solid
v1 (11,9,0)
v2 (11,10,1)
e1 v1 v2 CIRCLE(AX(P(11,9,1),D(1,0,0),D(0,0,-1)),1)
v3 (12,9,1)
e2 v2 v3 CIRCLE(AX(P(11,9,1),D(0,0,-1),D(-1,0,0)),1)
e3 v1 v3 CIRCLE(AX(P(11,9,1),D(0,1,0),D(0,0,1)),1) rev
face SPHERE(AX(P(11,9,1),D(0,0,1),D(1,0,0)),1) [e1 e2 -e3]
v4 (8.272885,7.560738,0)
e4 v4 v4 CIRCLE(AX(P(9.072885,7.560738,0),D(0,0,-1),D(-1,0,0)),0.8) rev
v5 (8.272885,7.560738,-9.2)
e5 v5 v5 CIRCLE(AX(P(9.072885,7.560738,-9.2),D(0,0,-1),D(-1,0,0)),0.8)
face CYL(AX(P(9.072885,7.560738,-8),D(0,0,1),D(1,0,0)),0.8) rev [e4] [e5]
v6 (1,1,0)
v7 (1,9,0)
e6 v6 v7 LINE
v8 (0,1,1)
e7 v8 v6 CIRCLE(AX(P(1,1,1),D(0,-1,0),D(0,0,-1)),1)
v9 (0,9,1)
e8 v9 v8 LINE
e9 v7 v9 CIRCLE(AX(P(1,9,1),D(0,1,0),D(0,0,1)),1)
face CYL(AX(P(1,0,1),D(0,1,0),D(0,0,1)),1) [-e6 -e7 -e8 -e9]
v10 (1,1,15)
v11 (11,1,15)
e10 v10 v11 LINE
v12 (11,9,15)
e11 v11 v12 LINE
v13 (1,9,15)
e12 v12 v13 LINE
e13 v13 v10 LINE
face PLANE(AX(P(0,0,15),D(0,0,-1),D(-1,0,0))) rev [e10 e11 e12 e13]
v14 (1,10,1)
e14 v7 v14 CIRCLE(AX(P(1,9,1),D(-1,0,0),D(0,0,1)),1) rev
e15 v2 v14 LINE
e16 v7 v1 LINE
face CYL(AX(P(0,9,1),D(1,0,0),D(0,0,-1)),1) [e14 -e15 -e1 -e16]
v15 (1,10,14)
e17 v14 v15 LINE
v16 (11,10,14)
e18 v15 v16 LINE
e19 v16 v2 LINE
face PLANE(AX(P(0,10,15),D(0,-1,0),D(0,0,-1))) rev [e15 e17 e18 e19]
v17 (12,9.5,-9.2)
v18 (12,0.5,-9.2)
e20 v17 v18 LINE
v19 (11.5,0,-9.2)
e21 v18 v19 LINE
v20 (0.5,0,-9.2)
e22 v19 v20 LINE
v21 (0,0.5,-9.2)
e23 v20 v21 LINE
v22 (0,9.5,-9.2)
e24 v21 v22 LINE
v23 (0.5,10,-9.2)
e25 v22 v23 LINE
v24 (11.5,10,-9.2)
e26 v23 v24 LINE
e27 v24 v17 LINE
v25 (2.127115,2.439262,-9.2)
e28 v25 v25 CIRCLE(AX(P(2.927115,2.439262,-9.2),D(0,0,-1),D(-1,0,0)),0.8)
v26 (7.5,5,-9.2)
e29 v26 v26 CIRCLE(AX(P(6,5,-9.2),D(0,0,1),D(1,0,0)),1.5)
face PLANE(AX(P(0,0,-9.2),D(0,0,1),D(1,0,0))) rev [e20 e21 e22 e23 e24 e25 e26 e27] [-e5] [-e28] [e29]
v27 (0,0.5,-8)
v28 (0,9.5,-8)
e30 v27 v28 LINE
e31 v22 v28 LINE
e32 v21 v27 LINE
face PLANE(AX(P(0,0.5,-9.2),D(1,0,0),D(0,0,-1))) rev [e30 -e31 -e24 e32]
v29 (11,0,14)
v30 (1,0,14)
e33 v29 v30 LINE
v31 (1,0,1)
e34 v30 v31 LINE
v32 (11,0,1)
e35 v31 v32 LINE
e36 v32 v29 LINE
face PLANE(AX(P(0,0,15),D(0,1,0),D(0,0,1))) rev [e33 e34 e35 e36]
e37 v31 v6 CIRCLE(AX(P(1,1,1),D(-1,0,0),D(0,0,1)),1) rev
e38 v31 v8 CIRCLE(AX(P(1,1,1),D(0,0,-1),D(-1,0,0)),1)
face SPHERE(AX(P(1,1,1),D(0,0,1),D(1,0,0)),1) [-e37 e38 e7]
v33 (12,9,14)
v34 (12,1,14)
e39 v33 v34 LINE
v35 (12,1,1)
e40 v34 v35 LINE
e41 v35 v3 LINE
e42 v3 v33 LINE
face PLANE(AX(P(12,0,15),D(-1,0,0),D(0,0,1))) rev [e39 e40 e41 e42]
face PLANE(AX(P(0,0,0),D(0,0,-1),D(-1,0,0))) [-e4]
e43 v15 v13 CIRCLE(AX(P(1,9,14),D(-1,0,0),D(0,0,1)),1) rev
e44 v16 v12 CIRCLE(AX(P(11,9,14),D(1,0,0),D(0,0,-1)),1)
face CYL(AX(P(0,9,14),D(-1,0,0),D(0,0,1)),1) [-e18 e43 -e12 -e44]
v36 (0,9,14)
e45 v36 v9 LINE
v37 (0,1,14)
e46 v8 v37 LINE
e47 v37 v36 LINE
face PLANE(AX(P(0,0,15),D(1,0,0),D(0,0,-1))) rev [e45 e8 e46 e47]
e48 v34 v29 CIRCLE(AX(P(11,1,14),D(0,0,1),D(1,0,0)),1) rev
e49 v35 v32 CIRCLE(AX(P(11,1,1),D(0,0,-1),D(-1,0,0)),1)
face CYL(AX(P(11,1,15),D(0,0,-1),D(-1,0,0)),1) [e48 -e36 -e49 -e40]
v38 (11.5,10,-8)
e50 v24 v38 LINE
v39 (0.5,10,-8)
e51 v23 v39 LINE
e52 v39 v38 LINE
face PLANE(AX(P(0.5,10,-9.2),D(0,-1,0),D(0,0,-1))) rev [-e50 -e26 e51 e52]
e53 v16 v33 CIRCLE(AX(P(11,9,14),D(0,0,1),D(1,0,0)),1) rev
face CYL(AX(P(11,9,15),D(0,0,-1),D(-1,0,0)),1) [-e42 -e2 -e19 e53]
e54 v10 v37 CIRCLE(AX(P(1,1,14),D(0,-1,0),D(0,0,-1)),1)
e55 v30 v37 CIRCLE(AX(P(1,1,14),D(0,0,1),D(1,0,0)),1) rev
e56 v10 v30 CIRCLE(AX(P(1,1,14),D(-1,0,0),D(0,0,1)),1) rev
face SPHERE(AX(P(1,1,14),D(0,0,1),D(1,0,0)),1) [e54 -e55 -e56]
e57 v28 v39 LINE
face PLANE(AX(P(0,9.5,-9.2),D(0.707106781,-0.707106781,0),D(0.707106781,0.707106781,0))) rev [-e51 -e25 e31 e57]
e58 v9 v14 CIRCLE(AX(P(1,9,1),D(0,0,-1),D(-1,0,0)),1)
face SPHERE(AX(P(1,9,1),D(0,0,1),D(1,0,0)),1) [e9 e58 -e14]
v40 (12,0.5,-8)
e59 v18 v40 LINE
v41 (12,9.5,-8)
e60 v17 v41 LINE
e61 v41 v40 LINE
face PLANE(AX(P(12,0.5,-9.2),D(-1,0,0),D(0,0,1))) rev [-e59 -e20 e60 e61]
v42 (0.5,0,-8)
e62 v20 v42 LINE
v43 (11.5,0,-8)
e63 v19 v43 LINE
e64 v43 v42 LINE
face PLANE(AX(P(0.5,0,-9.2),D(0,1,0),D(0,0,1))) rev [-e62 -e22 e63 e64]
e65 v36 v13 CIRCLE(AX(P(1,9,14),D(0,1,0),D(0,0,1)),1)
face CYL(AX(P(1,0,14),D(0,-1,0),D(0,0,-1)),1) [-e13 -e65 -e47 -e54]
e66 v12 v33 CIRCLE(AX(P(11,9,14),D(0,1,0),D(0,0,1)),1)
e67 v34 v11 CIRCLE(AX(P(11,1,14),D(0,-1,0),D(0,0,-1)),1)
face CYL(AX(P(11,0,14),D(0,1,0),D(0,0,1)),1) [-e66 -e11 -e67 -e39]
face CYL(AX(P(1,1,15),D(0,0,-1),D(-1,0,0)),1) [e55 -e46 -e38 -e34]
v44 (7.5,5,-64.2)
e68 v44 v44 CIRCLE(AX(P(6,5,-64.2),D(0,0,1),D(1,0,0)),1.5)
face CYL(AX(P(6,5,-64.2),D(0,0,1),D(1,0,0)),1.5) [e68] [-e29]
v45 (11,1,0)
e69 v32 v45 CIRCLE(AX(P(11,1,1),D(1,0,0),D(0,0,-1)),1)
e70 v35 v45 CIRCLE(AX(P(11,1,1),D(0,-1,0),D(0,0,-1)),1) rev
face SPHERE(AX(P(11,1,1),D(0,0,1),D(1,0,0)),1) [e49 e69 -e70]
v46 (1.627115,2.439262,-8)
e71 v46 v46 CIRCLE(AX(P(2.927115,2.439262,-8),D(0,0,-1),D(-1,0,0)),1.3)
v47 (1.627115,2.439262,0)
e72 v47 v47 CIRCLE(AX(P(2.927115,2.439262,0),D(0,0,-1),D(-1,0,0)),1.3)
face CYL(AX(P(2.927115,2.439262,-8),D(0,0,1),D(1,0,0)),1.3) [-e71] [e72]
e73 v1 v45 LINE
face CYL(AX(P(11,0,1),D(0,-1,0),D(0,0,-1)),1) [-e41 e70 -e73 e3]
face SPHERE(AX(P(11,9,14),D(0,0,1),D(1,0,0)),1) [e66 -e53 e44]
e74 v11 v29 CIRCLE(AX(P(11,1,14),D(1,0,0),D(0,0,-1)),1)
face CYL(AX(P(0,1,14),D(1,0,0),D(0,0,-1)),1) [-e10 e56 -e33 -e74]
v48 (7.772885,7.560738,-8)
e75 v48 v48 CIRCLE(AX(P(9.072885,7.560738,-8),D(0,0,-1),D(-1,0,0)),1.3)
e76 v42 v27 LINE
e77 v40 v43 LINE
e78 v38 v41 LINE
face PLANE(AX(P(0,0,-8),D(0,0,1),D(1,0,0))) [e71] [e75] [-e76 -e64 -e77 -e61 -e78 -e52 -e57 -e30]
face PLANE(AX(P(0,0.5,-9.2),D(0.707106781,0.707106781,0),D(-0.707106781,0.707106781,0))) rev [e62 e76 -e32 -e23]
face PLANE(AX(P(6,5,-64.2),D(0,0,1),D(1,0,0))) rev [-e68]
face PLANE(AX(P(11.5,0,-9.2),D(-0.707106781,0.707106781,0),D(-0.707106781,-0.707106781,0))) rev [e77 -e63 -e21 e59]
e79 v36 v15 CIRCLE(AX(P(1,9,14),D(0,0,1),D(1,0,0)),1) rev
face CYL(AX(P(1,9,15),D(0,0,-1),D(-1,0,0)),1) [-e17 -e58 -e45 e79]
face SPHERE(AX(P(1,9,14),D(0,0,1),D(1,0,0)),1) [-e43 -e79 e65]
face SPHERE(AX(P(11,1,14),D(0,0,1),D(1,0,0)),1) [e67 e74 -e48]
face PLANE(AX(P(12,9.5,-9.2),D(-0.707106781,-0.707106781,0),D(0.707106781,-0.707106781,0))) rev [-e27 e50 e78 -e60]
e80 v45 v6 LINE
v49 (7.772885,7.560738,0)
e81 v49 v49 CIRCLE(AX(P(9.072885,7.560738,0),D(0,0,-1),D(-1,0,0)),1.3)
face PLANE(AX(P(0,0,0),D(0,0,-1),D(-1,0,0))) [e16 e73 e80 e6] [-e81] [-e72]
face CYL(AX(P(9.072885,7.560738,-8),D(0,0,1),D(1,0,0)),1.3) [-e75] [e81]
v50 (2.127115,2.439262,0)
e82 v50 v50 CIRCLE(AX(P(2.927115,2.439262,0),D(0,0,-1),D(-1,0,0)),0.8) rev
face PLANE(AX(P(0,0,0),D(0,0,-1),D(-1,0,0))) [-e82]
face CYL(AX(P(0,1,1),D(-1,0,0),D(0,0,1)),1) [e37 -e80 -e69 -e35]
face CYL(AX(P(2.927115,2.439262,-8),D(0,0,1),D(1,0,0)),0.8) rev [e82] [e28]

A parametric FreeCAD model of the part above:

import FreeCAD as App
import Part
import Sketcher
from FreeCAD import Vector
Q = App.Units.Quantity

doc = App.newDocument("Part")
body = doc.addObject("PartDesign::Body", "Body")

sketch1 = body.newObject("Sketcher::SketchObject", "Sketch")
sketch1.AttachmentSupport = (doc.getObject("XY_Plane"), [""])
sketch1.MapMode = "FlatFace"
sketch1.addGeometry([
    Part.LineSegment(Vector(0, 10, 0), Vector(0, 0, 0)),
    Part.LineSegment(Vector(0, 0, 0), Vector(12, 0, 0)),
    Part.LineSegment(Vector(12, 0, 0), Vector(12, 10, 0)),
    Part.LineSegment(Vector(12, 10, 0), Vector(0, 10, 0)),
], False)
sketch1.addConstraint([
    Sketcher.Constraint("Coincident", 0, 2, 1, 1),
    Sketcher.Constraint("Coincident", 1, 2, 2, 1),
    Sketcher.Constraint("Coincident", 2, 2, 3, 1),
    Sketcher.Constraint("Coincident", 3, 2, 0, 1),
    Sketcher.Constraint("Vertical", 0),
    Sketcher.Constraint("Horizontal", 1),
    Sketcher.Constraint("Vertical", 2),
    Sketcher.Constraint("Horizontal", 3),
    Sketcher.Constraint("Coincident", 0, 2, -1, 1),
    Sketcher.Constraint("DistanceX", 1, 1, 1, 2, Q("12 mm")),
    Sketcher.Constraint("DistanceY", 0, 2, 0, 1, Q("10 mm")),
])
pad1 = body.newObject("PartDesign::Pad", "Pad")
pad1.Profile = sketch1
pad1.Length = 15
doc.recompute()

fillet = body.newObject("PartDesign::Fillet", "Fillet")
fillet.Base = (pad1, ["Edge1"])
fillet.UseAllEdges = True
fillet.Radius = 1

sketch2 = body.newObject("Sketcher::SketchObject", "Sketch001")
sketch2.AttachmentSupport = (doc.getObject("XY_Plane"), [""])
sketch2.MapMode = "FlatFace"
sketch2.addGeometry([
    Part.Circle(Vector(2.927115, 2.439262, 0), Vector(0, 0, 1), 1.3),
    Part.Circle(Vector(2.927115, 2.439262, 0), Vector(0, 0, 1), 0.8),
    Part.Circle(Vector(9.072885, 7.560738, 0), Vector(0, 0, 1), 1.3),
    Part.Circle(Vector(9.072885, 7.560738, 0), Vector(0, 0, 1), 0.8),
], False)
sketch2.addConstraint([
    Sketcher.Constraint("Coincident", 1, 3, 0, 3),
    Sketcher.Constraint("Coincident", 3, 3, 2, 3),
    Sketcher.Constraint("Equal", 0, 2),
    Sketcher.Constraint("Equal", 1, 3),
    Sketcher.Constraint("Diameter", 0, Q("2.6 mm")),
    Sketcher.Constraint("Diameter", 1, Q("1.6 mm")),
    Sketcher.Constraint("DistanceX", 0, 3, 2, 3, Q("6.14577 mm")),
    Sketcher.Constraint("DistanceX", -1, 1, 0, 3, Q("2.927115 mm")),
    Sketcher.Constraint("DistanceY", -1, 1, 0, 3, Q("2.439262 mm")),
    Sketcher.Constraint("DistanceY", -1, 1, 2, 3, Q("7.560738 mm")),
])
pad2 = body.newObject("PartDesign::Pad", "Pad001")
pad2.Profile = sketch2
pad2.Length = 8
pad2.Reversed = True

sketch3 = body.newObject("Sketcher::SketchObject", "Sketch002")
sketch3.AttachmentSupport = (doc.getObject("XY_Plane"), [""])
sketch3.MapMode = "FlatFace"
sketch3.AttachmentOffset = App.Placement(Vector(0, 0, -8), App.Rotation())
sketch3.addGeometry([
    Part.LineSegment(Vector(0.5, 0, 0), Vector(0, 0.5, 0)),
    Part.LineSegment(Vector(0, 0.5, 0), Vector(0, 9.5, 0)),
    Part.LineSegment(Vector(0, 9.5, 0), Vector(0.5, 10, 0)),
    Part.LineSegment(Vector(0.5, 10, 0), Vector(11.5, 10, 0)),
    Part.LineSegment(Vector(11.5, 10, 0), Vector(12, 9.5, 0)),
    Part.LineSegment(Vector(12, 9.5, 0), Vector(12, 0.5, 0)),
    Part.LineSegment(Vector(12, 0.5, 0), Vector(11.5, 0, 0)),
    Part.LineSegment(Vector(11.5, 0, 0), Vector(0.5, 0, 0)),
], False)
sketch3.addConstraint([
    Sketcher.Constraint("Coincident", 0, 2, 1, 1),
    Sketcher.Constraint("Coincident", 1, 2, 2, 1),
    Sketcher.Constraint("Coincident", 2, 2, 3, 1),
    Sketcher.Constraint("Coincident", 3, 2, 4, 1),
    Sketcher.Constraint("Coincident", 4, 2, 5, 1),
    Sketcher.Constraint("Coincident", 5, 2, 6, 1),
    Sketcher.Constraint("Coincident", 6, 2, 7, 1),
    Sketcher.Constraint("Coincident", 7, 2, 0, 1),
    Sketcher.Constraint("Vertical", 1),
    Sketcher.Constraint("Horizontal", 3),
    Sketcher.Constraint("Vertical", 5),
    Sketcher.Constraint("Horizontal", 7),
    Sketcher.Constraint("PointOnObject", 0, 2, -2),
    Sketcher.Constraint("PointOnObject", 6, 2, -1),
    Sketcher.Constraint("Perpendicular", 0, 2),
    Sketcher.Constraint("Perpendicular", 2, 4),
    Sketcher.Constraint("Perpendicular", 4, 6),
    Sketcher.Constraint("Horizontal", 1, 2, 4, 2),
    Sketcher.Constraint("Horizontal", 0, 2, 5, 2),
    Sketcher.Constraint("Vertical", 3, 2, 6, 2),
    Sketcher.Constraint("Vertical", 2, 2, 7, 2),
    Sketcher.Constraint("DistanceX", 3, 1, 3, 2, Q("11 mm")),
    Sketcher.Constraint("DistanceY", 1, 1, 1, 2, Q("9 mm")),
    Sketcher.Constraint("DistanceY", -1, 1, 2, 2, Q("10 mm")),
])
pad3 = body.newObject("PartDesign::Pad", "Pad002")
pad3.Profile = sketch3
pad3.Length = 1.2
pad3.Reversed = True

sketch4 = body.newObject("Sketcher::SketchObject", "Sketch003")
sketch4.AttachmentSupport = (doc.getObject("XY_Plane"), [""])
sketch4.MapMode = "FlatFace"
sketch4.AttachmentOffset = App.Placement(Vector(0, 0, -9.2), App.Rotation())
sketch4.addGeometry([
    Part.Circle(Vector(2.927115, 2.439262, 0), Vector(0, 0, 1), 0.8),
    Part.Circle(Vector(9.072885, 7.560738, 0), Vector(0, 0, 1), 0.8),
], False)
sketch4.addConstraint([
    Sketcher.Constraint("Equal", 0, 1),
    Sketcher.Constraint("Diameter", 0, Q("1.6 mm")),
    Sketcher.Constraint("DistanceX", 0, 3, 1, 3, Q("6.14577 mm")),
    Sketcher.Constraint("DistanceX", -1, 1, 0, 3, Q("2.927115 mm")),
    Sketcher.Constraint("DistanceY", -1, 1, 0, 3, Q("2.439262 mm")),
    Sketcher.Constraint("DistanceY", -1, 1, 1, 3, Q("7.560738 mm")),
])
pocket1 = body.newObject("PartDesign::Pocket", "Pocket")
pocket1.Profile = sketch4
pocket1.Length = 1.2
pocket1.Reversed = True

sketch5 = body.newObject("Sketcher::SketchObject", "Sketch004")
sketch5.AttachmentSupport = (doc.getObject("XY_Plane"), [""])
sketch5.MapMode = "FlatFace"
sketch5.AttachmentOffset = App.Placement(Vector(0, 0, -9.2), App.Rotation())
sketch5.addGeometry(Part.Circle(Vector(6, 5, 0), Vector(0, 0, 1), 1.5), False)
sketch5.addConstraint([
    Sketcher.Constraint("Diameter", 0, Q("3 mm")),
    Sketcher.Constraint("DistanceX", -1, 1, 0, 3, Q("6 mm")),
    Sketcher.Constraint("DistanceY", -1, 1, 0, 3, Q("5 mm")),
])
pad4 = body.newObject("PartDesign::Pad", "Pad003")
pad4.Profile = sketch5
pad4.Length = 55
pad4.Reversed = True

doc.recompute()
